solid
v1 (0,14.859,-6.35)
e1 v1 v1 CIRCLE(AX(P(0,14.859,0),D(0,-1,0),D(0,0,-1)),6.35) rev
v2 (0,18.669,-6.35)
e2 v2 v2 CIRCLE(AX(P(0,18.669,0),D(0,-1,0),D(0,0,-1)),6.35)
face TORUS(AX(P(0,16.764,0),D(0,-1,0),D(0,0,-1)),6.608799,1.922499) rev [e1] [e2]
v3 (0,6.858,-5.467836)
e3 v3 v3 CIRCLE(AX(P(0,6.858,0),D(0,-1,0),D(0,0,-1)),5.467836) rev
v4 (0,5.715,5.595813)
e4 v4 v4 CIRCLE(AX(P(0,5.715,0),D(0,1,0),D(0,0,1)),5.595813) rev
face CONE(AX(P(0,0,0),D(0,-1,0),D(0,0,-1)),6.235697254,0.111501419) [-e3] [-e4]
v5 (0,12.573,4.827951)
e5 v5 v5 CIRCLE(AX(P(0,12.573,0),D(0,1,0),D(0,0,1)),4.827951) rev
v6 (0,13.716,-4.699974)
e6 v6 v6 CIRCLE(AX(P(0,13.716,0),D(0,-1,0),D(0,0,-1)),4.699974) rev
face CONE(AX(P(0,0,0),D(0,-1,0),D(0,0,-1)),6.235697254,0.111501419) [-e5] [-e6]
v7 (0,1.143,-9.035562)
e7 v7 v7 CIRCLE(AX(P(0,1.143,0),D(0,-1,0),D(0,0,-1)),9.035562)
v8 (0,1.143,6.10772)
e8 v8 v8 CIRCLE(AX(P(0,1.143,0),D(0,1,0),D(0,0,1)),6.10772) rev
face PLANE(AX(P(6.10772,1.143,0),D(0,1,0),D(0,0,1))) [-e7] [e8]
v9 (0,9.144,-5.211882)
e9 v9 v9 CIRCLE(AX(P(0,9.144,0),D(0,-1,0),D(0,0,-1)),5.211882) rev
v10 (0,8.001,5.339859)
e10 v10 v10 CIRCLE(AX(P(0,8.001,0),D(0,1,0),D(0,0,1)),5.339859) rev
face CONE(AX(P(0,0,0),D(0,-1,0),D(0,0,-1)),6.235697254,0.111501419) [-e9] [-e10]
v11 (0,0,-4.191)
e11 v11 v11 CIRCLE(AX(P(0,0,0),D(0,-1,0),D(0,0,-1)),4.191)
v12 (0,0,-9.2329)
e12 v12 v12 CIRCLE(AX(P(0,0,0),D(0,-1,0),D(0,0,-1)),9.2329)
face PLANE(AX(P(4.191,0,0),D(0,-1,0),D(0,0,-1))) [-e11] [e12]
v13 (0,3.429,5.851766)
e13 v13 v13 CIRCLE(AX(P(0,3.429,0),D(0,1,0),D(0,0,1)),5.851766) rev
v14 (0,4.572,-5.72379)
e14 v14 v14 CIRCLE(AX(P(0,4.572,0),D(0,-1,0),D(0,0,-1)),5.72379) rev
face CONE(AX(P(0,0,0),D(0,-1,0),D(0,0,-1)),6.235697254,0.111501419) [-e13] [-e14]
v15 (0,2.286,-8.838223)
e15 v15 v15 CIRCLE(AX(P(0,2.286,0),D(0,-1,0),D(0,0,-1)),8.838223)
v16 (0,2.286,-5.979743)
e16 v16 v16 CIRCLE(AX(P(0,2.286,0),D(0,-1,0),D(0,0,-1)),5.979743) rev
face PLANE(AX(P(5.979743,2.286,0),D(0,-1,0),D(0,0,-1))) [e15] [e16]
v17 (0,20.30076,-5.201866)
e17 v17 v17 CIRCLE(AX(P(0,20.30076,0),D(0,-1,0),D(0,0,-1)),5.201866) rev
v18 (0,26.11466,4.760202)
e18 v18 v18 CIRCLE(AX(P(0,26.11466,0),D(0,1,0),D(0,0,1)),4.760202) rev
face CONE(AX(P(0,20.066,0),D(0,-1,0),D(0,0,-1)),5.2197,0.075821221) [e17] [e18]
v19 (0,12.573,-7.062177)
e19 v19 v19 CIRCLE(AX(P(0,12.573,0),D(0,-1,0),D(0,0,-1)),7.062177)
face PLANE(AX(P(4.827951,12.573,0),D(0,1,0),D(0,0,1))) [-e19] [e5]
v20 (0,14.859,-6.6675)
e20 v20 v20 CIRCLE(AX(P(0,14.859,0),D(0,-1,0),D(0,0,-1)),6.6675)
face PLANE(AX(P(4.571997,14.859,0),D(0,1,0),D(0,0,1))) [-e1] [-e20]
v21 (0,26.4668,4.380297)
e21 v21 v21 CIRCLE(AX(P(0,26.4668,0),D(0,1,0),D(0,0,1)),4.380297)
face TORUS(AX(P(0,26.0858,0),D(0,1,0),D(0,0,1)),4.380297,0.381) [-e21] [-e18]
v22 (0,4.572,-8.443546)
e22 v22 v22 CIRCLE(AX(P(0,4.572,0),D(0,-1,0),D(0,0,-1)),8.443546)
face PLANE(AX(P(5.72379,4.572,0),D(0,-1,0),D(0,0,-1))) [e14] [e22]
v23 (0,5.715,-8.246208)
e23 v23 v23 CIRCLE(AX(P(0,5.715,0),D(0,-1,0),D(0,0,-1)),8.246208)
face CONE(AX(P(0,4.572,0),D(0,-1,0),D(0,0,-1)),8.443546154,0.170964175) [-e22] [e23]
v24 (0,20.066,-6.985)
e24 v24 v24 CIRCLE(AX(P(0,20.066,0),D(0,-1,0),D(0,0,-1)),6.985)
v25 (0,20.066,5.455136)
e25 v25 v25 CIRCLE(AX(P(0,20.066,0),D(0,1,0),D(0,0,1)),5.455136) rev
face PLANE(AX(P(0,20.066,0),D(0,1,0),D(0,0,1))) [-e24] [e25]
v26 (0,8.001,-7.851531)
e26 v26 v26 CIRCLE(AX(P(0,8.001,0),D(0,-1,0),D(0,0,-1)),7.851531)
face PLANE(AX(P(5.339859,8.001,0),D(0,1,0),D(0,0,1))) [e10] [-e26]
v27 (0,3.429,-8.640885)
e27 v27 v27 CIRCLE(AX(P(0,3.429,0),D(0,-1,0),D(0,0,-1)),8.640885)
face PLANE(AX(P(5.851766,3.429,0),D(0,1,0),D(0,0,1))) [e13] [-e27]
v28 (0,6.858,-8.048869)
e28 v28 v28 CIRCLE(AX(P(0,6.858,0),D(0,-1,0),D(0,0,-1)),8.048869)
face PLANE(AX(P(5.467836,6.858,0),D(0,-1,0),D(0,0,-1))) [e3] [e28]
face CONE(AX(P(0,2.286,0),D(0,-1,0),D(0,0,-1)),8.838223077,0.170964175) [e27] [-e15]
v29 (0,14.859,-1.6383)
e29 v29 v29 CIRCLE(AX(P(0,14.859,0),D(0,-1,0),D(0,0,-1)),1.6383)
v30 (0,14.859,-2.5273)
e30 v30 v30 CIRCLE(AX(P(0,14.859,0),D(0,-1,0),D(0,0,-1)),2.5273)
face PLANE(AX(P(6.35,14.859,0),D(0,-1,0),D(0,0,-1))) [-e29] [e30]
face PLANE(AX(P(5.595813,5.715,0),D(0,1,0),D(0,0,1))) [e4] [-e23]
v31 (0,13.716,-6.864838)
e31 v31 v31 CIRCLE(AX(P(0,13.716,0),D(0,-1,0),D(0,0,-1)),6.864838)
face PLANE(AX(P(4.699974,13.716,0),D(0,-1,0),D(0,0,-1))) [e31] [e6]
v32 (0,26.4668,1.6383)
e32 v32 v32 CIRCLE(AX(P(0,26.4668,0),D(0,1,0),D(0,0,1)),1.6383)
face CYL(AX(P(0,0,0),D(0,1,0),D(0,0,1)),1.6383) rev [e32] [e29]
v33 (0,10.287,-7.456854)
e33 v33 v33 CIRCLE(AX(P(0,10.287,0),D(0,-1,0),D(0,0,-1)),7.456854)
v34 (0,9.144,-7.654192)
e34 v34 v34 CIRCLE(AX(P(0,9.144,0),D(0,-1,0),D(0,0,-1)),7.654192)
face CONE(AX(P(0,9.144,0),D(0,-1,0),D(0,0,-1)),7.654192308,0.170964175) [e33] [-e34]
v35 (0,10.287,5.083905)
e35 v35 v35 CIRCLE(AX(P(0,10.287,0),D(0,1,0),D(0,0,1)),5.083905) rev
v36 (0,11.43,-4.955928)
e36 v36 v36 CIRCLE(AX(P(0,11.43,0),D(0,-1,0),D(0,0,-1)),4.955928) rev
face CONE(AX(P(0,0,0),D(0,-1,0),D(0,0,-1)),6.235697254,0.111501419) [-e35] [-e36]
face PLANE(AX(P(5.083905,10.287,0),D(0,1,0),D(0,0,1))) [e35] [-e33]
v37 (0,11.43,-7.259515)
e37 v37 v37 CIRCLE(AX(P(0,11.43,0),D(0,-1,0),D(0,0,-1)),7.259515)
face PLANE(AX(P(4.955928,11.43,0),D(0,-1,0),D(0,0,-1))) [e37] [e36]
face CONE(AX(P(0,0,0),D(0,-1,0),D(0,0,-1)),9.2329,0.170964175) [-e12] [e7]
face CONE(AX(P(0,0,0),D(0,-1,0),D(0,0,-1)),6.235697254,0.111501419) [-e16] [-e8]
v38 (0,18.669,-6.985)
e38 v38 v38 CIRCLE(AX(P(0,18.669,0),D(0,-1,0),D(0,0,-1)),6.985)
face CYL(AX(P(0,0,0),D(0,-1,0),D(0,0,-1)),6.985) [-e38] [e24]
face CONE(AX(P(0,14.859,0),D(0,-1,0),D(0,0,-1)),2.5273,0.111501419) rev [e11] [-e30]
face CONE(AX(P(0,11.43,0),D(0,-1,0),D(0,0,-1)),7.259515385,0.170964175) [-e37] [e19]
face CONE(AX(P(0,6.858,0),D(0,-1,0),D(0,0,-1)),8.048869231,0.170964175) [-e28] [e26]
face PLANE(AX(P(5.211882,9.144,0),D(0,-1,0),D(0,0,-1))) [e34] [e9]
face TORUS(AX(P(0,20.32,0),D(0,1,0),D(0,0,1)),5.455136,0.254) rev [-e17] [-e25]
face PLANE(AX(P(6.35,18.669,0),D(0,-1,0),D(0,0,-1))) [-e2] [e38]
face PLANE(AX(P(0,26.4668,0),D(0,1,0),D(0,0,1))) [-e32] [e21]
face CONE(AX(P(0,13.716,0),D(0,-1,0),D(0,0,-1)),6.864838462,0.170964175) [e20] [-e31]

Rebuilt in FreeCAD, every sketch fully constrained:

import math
import FreeCAD as App
import Part
import Sketcher

V = App.Vector
Q = App.Units.Quantity


def edges_at(feature, points):
    """Names of the edges that pass closest to the given points."""
    edges = feature.Shape.Edges
    near = lambda p: min(range(len(edges)), key=lambda i: edges[i].distToShape(Part.Vertex(*p))[0])
    return sorted({f"Edge{near(p) + 1}" for p in points})

doc = App.newDocument("Part")
params = doc.addObject("Spreadsheet::Sheet", "Params")
for row, (alias, value) in enumerate([
    ("revolution_angle", "360 deg"),
    ("sketch2_width", "0.1180001 in"),
    ("revolution2_angle", "360 deg"),
    ("sketch3_width", "0.25 in"),
    ("sketch3_width2", "0.025 in"),
    ("sketch3_height", "0.055 in"),
    ("sketch3_height2", "0.205 in"),
    ("revolution3_angle", "360 deg"),
    ("sketch4_height", "0.252 in"),
    ("revolution4_angle", "360 deg"),
    ("sketch5_diameter", "0.129 in"),
    ("fillet_radius", "0.015 in"),
    ("fillet2_radius", "0.01 in"),
], start=1):
    params.set(f"A{row}", alias)
    params.set(f"B{row}", "=" + value)
    params.setAlias(f"B{row}", alias)

body = doc.addObject("PartDesign::Body", "Body")

sketch1 = body.newObject("Sketcher::SketchObject", "Sketch")
sketch1.AttachmentSupport = (doc.getObject("XY_Plane"), [""])
sketch1.MapMode = "FlatFace"
sketch1.addGeometry([
    Part.LineSegment(V(6.2, 0, 0), V(4.6, 14.9, 0)),
    Part.LineSegment(V(4.6, 14.9, 0), V(2.5, 14.9, 0)),
    Part.LineSegment(V(2.5, 14.9, 0), V(4.2, 0, 0)),
    Part.LineSegment(V(4.2, 0, 0), V(6.2, 0, 0)),
], False)
sketch1.addConstraint([
    Sketcher.Constraint("Coincident", 0, 2, 1, 1),
    Sketcher.Constraint("Coincident", 1, 2, 2, 1),
    Sketcher.Constraint("Coincident", 2, 2, 3, 1),
    Sketcher.Constraint("Coincident", 3, 2, 0, 1),
    Sketcher.Constraint("Horizontal", 1),
    Sketcher.Constraint("Horizontal", 3),
    Sketcher.Constraint("PointOnObject", 2, 2, -1),
    Sketcher.Constraint("Parallel", 0, 2),
    Sketcher.Constraint("DistanceX", -1, 1, 0, 2, Q("0.1799999 in")),
    Sketcher.Constraint("DistanceX", 1, 2, 1, 1, Q("0.0804999 in")),
    Sketcher.Constraint("DistanceY", -1, 1, 0, 2, Q("0.585 in")),
    Sketcher.Constraint("DistanceX", -1, 1, 2, 2, Q("0.165 in")),
])
revolution = body.newObject("PartDesign::Revolution", "Revolution")
revolution.Profile = sketch1
revolution.ReferenceAxis = (sketch1, ["V_Axis"])
revolution.setExpression("Angle", "Params.revolution_angle")

sketch2 = body.newObject("Sketcher::SketchObject", "Sketch001")
sketch2.AttachmentSupport = (doc.getObject("XY_Plane"), [""])
sketch2.MapMode = "FlatFace"
sketch2.addGeometry([
    Part.LineSegment(V(6.2, 0, 0), V(9.2, 0, 0)),
    Part.LineSegment(V(9.2, 0, 0), V(9, 1.1, 0)),
    Part.LineSegment(V(9, 1.1, 0), V(6.1, 1.1, 0)),
    Part.LineSegment(V(6.1, 1.1, 0), V(6.2, 0, 0)),
    Part.LineSegment(V(4.6, 14.9, 0), V(4.7, 13.7, 0)),
    Part.LineSegment(V(4.7, 13.7, 0), V(6.9, 13.7, 0)),
    Part.LineSegment(V(6.9, 13.7, 0), V(6.7, 14.9, 0)),
    Part.LineSegment(V(6.7, 14.9, 0), V(4.6, 14.9, 0)),
    Part.LineSegment(V(6, 2.3, 0), V(8.8, 2.3, 0)),
    Part.LineSegment(V(8.8, 2.3, 0), V(8.6, 3.4, 0)),
    Part.LineSegment(V(8.6, 3.4, 0), V(5.9, 3.4, 0)),
    Part.LineSegment(V(5.9, 3.4, 0), V(6, 2.3, 0)),
    Part.LineSegment(V(5.7, 4.6, 0), V(8.4, 4.6, 0)),
    Part.LineSegment(V(8.4, 4.6, 0), V(8.2, 5.7, 0)),
    Part.LineSegment(V(8.2, 5.7, 0), V(5.6, 5.7, 0)),
    Part.LineSegment(V(5.6, 5.7, 0), V(5.7, 4.6, 0)),
    Part.LineSegment(V(5.5, 6.9, 0), V(8, 6.9, 0)),
    Part.LineSegment(V(8, 6.9, 0), V(7.9, 8, 0)),
    Part.LineSegment(V(7.9, 8, 0), V(5.3, 8, 0)),
    Part.LineSegment(V(5.3, 8, 0), V(5.5, 6.9, 0)),
    Part.LineSegment(V(5.2, 9.1, 0), V(7.7, 9.1, 0)),
    Part.LineSegment(V(7.7, 9.1, 0), V(7.5, 10.3, 0)),
    Part.LineSegment(V(7.5, 10.3, 0), V(5.1, 10.3, 0)),
    Part.LineSegment(V(5.1, 10.3, 0), V(5.2, 9.1, 0)),
    Part.LineSegment(V(5, 11.4, 0), V(7.3, 11.4, 0)),
    Part.LineSegment(V(7.3, 11.4, 0), V(7.1, 12.6, 0)),
    Part.LineSegment(V(7.1, 12.6, 0), V(4.8, 12.6, 0)),
    Part.LineSegment(V(4.8, 12.6, 0), V(5, 11.4, 0)),
], False)
sketch2.addConstraint([
    Sketcher.Constraint("Coincident", 0, 2, 1, 1),
    Sketcher.Constraint("Coincident", 1, 2, 2, 1),
    Sketcher.Constraint("Coincident", 2, 2, 3, 1),
    Sketcher.Constraint("Coincident", 3, 2, 0, 1),
    Sketcher.Constraint("Coincident", 4, 2, 5, 1),
    Sketcher.Constraint("Coincident", 5, 2, 6, 1),
    Sketcher.Constraint("Coincident", 6, 2, 7, 1),
    Sketcher.Constraint("Coincident", 7, 2, 4, 1),
    Sketcher.Constraint("Coincident", 8, 2, 9, 1),
    Sketcher.Constraint("Coincident", 9, 2, 10, 1),
    Sketcher.Constraint("Coincident", 10, 2, 11, 1),
    Sketcher.Constraint("Coincident", 11, 2, 8, 1),
    Sketcher.Constraint("Coincident", 12, 2, 13, 1),
    Sketcher.Constraint("Coincident", 13, 2, 14, 1),
    Sketcher.Constraint("Coincident", 14, 2, 15, 1),
    Sketcher.Constraint("Coincident", 15, 2, 12, 1),
    Sketcher.Constraint("Coincident", 16, 2, 17, 1),
    Sketcher.Constraint("Coincident", 17, 2, 18, 1),
    Sketcher.Constraint("Coincident", 18, 2, 19, 1),
    Sketcher.Constraint("Coincident", 19, 2, 16, 1),
    Sketcher.Constraint("Coincident", 20, 2, 21, 1),
    Sketcher.Constraint("Coincident", 21, 2, 22, 1),
    Sketcher.Constraint("Coincident", 22, 2, 23, 1),
    Sketcher.Constraint("Coincident", 23, 2, 20, 1),
    Sketcher.Constraint("Coincident", 24, 2, 25, 1),
    Sketcher.Constraint("Coincident", 25, 2, 26, 1),
    Sketcher.Constraint("Coincident", 26, 2, 27, 1),
    Sketcher.Constraint("Coincident", 27, 2, 24, 1),
    Sketcher.Constraint("Horizontal", 0),
    Sketcher.Constraint("Horizontal", 2),
    Sketcher.Constraint("Horizontal", 5),
    Sketcher.Constraint("Horizontal", 7),
    Sketcher.Constraint("Horizontal", 8),
    Sketcher.Constraint("Horizontal", 10),
    Sketcher.Constraint("Horizontal", 12),
    Sketcher.Constraint("Horizontal", 14),
    Sketcher.Constraint("Horizontal", 16),
    Sketcher.Constraint("Horizontal", 18),
    Sketcher.Constraint("Horizontal", 20),
    Sketcher.Constraint("Horizontal", 22),
    Sketcher.Constraint("Horizontal", 24),
    Sketcher.Constraint("Horizontal", 26),
    Sketcher.Constraint("PointOnObject", 0, 2, -1),
    Sketcher.Constraint("Parallel", 3, 4),
    Sketcher.Constraint("Parallel", 1, 6),
    Sketcher.Constraint("Parallel", 6, 9),
    Sketcher.Constraint("Parallel", 4, 11),
    Sketcher.Constraint("Parallel", 9, 13),
    Sketcher.Constraint("Parallel", 11, 15),
    Sketcher.Constraint("Parallel", 13, 17),
    Sketcher.Constraint("Parallel", 15, 19),
    Sketcher.Constraint("Parallel", 17, 21),
    Sketcher.Constraint("Parallel", 19, 23),
    Sketcher.Constraint("Parallel", 21, 25),
    Sketcher.Constraint("Parallel", 23, 27),
    Sketcher.Constraint("Equal", 3, 4),
    Sketcher.Constraint("Equal", 6, 9),
    Sketcher.Constraint("Equal", 9, 13),
    Sketcher.Constraint("Equal", 13, 17),
    Sketcher.Constraint("Equal", 17, 21),
    Sketcher.Constraint("Equal", 21, 25),
    Sketcher.Constraint("DistanceX", 0, 1, 0, 2, Q("0.1180001 in")),
    Sketcher.Constraint("DistanceY", -1, 1, 4, 2, Q("0.54 in")),
    Sketcher.Constraint("DistanceX", -1, 1, 7, 2, Q("0.1799999 in")),
    Sketcher.Constraint("DistanceY", -1, 1, 8, 2, Q("0.09 in")),
    Sketcher.Constraint("DistanceY", -1, 1, 12, 2, Q("0.18 in")),
    Sketcher.Constraint("DistanceY", -1, 1, 16, 2, Q("0.27 in")),
    Sketcher.Constraint("DistanceY", -1, 1, 20, 2, Q("0.36 in")),
    Sketcher.Constraint("DistanceY", -1, 1, 24, 2, Q("0.45 in")),
    Sketcher.Constraint("DistanceX", 7, 2, 7, 1, Q("0.0825001 in")),
    Sketcher.Constraint("DistanceY", -1, 1, 1, 2, Q("0.045 in")),
    Sketcher.Constraint("DistanceX", 3, 2, 6, 2, Q("0.0170001 in")),
    Sketcher.Constraint("DistanceX", 11, 2, 12, 2, Q("0.0970001 in")),
    Sketcher.Constraint("DistanceX", 4, 2, 25, 2, Q("0.0930001 in")),
    Sketcher.Constraint("DistanceX", 2, 2, 8, 2, Q("0.1075001 in")),
    Sketcher.Constraint("DistanceX", 2, 2, 2, 1, Q("2.927841 mm")),
    Sketcher.Constraint("DistanceX", 8, 1, 8, 2, Q("2.85848 mm")),
    Sketcher.Constraint("DistanceX", 18, 2, 18, 1, Q("2.511672 mm")),
    Sketcher.Constraint("DistanceX", 20, 1, 20, 2, Q("2.44231 mm")),
    Sketcher.Constraint("Distance", 1, Q("1.15991 mm")),
    Sketcher.Constraint("DistanceX", 12, 1, 12, 2, Q("2.719757 mm")),
    Sketcher.Constraint("DistanceX", 24, 1, 24, 2, Q("2.303587 mm")),
    Sketcher.Constraint("DistanceX", -1, 1, 16, 2, Q("8.048869 mm")),
    Sketcher.Constraint("DistanceX", -1, 1, 23, 2, Q("5.211882 mm")),
])
sketch2.setExpression("Constraints[61]", "Params.sketch2_width")
revolution2 = body.newObject("PartDesign::Revolution", "Revolution001")
revolution2.Profile = sketch2
revolution2.ReferenceAxis = (sketch2, ["V_Axis"])
revolution2.setExpression("Angle", "Params.revolution2_angle")

sketch3 = body.newObject("Sketcher::SketchObject", "Sketch002")
sketch3.AttachmentSupport = (doc.getObject("XY_Plane"), [""])
sketch3.MapMode = "FlatFace"
sketch3.addGeometry([
    Part.LineSegment(V(0, 14.9, 0), V(6.3, 14.9, 0)),
    Part.ArcOfCircle(Part.Circle(V(6.6, 16.8, 0), V(0, 0, 1), 1.9), math.radians(98), math.radians(262)),
    Part.LineSegment(V(6.3, 18.7, 0), V(7, 18.7, 0)),
    Part.LineSegment(V(7, 18.7, 0), V(7, 20.1, 0)),
    Part.LineSegment(V(7, 20.1, 0), V(0, 20.1, 0)),
    Part.LineSegment(V(0, 20.1, 0), V(0, 14.9, 0)),
], False)
sketch3.addConstraint([
    Sketcher.Constraint("Coincident", 0, 2, 1, 2),
    Sketcher.Constraint("Coincident", 1, 1, 2, 1),
    Sketcher.Constraint("Coincident", 2, 2, 3, 1),
    Sketcher.Constraint("Coincident", 3, 2, 4, 1),
    Sketcher.Constraint("Coincident", 4, 2, 5, 1),
    Sketcher.Constraint("Coincident", 5, 2, 0, 1),
    Sketcher.Constraint("Horizontal", 0),
    Sketcher.Constraint("Horizontal", 2),
    Sketcher.Constraint("Vertical", 3),
    Sketcher.Constraint("Horizontal", 4),
    Sketcher.Constraint("Vertical", 5),
    Sketcher.Constraint("PointOnObject", 4, 2, -2),
    Sketcher.Constraint("Vertical", 0, 2, 1, 1),
    Sketcher.Constraint("DistanceX", 0, 1, 0, 2, Q("0.25 in")),
    Sketcher.Constraint("DistanceX", 2, 1, 2, 2, Q("0.025 in")),
    Sketcher.Constraint("DistanceY", 3, 1, 3, 2, Q("0.055 in")),
    Sketcher.Constraint("DistanceY", 5, 2, 5, 1, Q("0.205 in")),
    Sketcher.Constraint("DistanceY", -1, 1, 1, 3, Q("0.66 in")),
    Sketcher.Constraint("Radius", 1, Q("1.922499 mm")),
])
sketch3.setExpression("Constraints[13]", "Params.sketch3_width")
sketch3.setExpression("Constraints[14]", "Params.sketch3_width2")
sketch3.setExpression("Constraints[15]", "Params.sketch3_height")
sketch3.setExpression("Constraints[16]", "Params.sketch3_height2")
revolution3 = body.newObject("PartDesign::Revolution", "Revolution002")
revolution3.Profile = sketch3
revolution3.ReferenceAxis = (sketch3, ["V_Axis"])
revolution3.setExpression("Angle", "Params.revolution3_angle")

sketch4 = body.newObject("Sketcher::SketchObject", "Sketch003")
sketch4.AttachmentSupport = (doc.getObject("XY_Plane"), [""])
sketch4.MapMode = "FlatFace"
sketch4.addGeometry([
    Part.LineSegment(V(0, 20.1, 0), V(5.2, 20.1, 0)),
    Part.LineSegment(V(5.2, 20.1, 0), V(4.7, 26.5, 0)),
    Part.LineSegment(V(4.7, 26.5, 0), V(0, 26.5, 0)),
    Part.LineSegment(V(0, 26.5, 0), V(0, 20.1, 0)),
], False)
sketch4.addConstraint([
    Sketcher.Constraint("Coincident", 0, 2, 1, 1),
    Sketcher.Constraint("Coincident", 1, 2, 2, 1),
    Sketcher.Constraint("Coincident", 2, 2, 3, 1),
    Sketcher.Constraint("Coincident", 3, 2, 0, 1),
    Sketcher.Constraint("Horizontal", 0),
    Sketcher.Constraint("Horizontal", 2),
    Sketcher.Constraint("Vertical", 3),
    Sketcher.Constraint("PointOnObject", 2, 2, -2),
    Sketcher.Constraint("DistanceY", 3, 2, 3, 1, Q("0.252 in")),
    Sketcher.Constraint("DistanceY", -1, 1, 0, 2, Q("0.79 in")),
    Sketcher.Constraint("DistanceX", 0, 1, 0, 2, Q("0.2055 in")),
    Sketcher.Constraint("DistanceX", 2, 2, 2, 1, Q("4.733451 mm")),
])
sketch4.setExpression("Constraints[8]", "Params.sketch4_height")
revolution4 = body.newObject("PartDesign::Revolution", "Revolution003")
revolution4.Profile = sketch4
revolution4.ReferenceAxis = (sketch4, ["V_Axis"])
revolution4.setExpression("Angle", "Params.revolution4_angle")

sketch5 = body.newObject("Sketcher::SketchObject", "Sketch004")
sketch5.AttachmentSupport = (doc.getObject("XZ_Plane"), [""])
sketch5.MapMode = "FlatFace"
sketch5.AttachmentOffset = App.Placement(V(0, 0, -1.042 * 25.4), App.Rotation())
sketch5.addGeometry(Part.Circle(V(0, 0, 0), V(0, 0, 1), 1.6), False)
sketch5.addConstraint([
    Sketcher.Constraint("Coincident", 0, 3, -1, 1),
    Sketcher.Constraint("Diameter", 0, Q("0.129 in")),
])
sketch5.setExpression("Constraints[1]", "Params.sketch5_diameter")
pocket1 = body.newObject("PartDesign::Pocket", "Pocket")
pocket1.Profile = sketch5
pocket1.Type = "ThroughAll"
pocket1.Reversed = True
doc.recompute()

fillet = body.newObject("PartDesign::Fillet", "Fillet")
fillet.Base = (pocket1, edges_at(pocket1, [(0, 26.467, 4.733)]))
fillet.setExpression("Radius", "Params.fillet_radius")
doc.recompute()

fillet2 = body.newObject("PartDesign::Fillet", "Fillet001")
fillet2.Base = (fillet, edges_at(fillet, [(0, 20.066, 5.22)]))
fillet2.setExpression("Radius", "Params.fillet2_radius")

doc.recompute()
